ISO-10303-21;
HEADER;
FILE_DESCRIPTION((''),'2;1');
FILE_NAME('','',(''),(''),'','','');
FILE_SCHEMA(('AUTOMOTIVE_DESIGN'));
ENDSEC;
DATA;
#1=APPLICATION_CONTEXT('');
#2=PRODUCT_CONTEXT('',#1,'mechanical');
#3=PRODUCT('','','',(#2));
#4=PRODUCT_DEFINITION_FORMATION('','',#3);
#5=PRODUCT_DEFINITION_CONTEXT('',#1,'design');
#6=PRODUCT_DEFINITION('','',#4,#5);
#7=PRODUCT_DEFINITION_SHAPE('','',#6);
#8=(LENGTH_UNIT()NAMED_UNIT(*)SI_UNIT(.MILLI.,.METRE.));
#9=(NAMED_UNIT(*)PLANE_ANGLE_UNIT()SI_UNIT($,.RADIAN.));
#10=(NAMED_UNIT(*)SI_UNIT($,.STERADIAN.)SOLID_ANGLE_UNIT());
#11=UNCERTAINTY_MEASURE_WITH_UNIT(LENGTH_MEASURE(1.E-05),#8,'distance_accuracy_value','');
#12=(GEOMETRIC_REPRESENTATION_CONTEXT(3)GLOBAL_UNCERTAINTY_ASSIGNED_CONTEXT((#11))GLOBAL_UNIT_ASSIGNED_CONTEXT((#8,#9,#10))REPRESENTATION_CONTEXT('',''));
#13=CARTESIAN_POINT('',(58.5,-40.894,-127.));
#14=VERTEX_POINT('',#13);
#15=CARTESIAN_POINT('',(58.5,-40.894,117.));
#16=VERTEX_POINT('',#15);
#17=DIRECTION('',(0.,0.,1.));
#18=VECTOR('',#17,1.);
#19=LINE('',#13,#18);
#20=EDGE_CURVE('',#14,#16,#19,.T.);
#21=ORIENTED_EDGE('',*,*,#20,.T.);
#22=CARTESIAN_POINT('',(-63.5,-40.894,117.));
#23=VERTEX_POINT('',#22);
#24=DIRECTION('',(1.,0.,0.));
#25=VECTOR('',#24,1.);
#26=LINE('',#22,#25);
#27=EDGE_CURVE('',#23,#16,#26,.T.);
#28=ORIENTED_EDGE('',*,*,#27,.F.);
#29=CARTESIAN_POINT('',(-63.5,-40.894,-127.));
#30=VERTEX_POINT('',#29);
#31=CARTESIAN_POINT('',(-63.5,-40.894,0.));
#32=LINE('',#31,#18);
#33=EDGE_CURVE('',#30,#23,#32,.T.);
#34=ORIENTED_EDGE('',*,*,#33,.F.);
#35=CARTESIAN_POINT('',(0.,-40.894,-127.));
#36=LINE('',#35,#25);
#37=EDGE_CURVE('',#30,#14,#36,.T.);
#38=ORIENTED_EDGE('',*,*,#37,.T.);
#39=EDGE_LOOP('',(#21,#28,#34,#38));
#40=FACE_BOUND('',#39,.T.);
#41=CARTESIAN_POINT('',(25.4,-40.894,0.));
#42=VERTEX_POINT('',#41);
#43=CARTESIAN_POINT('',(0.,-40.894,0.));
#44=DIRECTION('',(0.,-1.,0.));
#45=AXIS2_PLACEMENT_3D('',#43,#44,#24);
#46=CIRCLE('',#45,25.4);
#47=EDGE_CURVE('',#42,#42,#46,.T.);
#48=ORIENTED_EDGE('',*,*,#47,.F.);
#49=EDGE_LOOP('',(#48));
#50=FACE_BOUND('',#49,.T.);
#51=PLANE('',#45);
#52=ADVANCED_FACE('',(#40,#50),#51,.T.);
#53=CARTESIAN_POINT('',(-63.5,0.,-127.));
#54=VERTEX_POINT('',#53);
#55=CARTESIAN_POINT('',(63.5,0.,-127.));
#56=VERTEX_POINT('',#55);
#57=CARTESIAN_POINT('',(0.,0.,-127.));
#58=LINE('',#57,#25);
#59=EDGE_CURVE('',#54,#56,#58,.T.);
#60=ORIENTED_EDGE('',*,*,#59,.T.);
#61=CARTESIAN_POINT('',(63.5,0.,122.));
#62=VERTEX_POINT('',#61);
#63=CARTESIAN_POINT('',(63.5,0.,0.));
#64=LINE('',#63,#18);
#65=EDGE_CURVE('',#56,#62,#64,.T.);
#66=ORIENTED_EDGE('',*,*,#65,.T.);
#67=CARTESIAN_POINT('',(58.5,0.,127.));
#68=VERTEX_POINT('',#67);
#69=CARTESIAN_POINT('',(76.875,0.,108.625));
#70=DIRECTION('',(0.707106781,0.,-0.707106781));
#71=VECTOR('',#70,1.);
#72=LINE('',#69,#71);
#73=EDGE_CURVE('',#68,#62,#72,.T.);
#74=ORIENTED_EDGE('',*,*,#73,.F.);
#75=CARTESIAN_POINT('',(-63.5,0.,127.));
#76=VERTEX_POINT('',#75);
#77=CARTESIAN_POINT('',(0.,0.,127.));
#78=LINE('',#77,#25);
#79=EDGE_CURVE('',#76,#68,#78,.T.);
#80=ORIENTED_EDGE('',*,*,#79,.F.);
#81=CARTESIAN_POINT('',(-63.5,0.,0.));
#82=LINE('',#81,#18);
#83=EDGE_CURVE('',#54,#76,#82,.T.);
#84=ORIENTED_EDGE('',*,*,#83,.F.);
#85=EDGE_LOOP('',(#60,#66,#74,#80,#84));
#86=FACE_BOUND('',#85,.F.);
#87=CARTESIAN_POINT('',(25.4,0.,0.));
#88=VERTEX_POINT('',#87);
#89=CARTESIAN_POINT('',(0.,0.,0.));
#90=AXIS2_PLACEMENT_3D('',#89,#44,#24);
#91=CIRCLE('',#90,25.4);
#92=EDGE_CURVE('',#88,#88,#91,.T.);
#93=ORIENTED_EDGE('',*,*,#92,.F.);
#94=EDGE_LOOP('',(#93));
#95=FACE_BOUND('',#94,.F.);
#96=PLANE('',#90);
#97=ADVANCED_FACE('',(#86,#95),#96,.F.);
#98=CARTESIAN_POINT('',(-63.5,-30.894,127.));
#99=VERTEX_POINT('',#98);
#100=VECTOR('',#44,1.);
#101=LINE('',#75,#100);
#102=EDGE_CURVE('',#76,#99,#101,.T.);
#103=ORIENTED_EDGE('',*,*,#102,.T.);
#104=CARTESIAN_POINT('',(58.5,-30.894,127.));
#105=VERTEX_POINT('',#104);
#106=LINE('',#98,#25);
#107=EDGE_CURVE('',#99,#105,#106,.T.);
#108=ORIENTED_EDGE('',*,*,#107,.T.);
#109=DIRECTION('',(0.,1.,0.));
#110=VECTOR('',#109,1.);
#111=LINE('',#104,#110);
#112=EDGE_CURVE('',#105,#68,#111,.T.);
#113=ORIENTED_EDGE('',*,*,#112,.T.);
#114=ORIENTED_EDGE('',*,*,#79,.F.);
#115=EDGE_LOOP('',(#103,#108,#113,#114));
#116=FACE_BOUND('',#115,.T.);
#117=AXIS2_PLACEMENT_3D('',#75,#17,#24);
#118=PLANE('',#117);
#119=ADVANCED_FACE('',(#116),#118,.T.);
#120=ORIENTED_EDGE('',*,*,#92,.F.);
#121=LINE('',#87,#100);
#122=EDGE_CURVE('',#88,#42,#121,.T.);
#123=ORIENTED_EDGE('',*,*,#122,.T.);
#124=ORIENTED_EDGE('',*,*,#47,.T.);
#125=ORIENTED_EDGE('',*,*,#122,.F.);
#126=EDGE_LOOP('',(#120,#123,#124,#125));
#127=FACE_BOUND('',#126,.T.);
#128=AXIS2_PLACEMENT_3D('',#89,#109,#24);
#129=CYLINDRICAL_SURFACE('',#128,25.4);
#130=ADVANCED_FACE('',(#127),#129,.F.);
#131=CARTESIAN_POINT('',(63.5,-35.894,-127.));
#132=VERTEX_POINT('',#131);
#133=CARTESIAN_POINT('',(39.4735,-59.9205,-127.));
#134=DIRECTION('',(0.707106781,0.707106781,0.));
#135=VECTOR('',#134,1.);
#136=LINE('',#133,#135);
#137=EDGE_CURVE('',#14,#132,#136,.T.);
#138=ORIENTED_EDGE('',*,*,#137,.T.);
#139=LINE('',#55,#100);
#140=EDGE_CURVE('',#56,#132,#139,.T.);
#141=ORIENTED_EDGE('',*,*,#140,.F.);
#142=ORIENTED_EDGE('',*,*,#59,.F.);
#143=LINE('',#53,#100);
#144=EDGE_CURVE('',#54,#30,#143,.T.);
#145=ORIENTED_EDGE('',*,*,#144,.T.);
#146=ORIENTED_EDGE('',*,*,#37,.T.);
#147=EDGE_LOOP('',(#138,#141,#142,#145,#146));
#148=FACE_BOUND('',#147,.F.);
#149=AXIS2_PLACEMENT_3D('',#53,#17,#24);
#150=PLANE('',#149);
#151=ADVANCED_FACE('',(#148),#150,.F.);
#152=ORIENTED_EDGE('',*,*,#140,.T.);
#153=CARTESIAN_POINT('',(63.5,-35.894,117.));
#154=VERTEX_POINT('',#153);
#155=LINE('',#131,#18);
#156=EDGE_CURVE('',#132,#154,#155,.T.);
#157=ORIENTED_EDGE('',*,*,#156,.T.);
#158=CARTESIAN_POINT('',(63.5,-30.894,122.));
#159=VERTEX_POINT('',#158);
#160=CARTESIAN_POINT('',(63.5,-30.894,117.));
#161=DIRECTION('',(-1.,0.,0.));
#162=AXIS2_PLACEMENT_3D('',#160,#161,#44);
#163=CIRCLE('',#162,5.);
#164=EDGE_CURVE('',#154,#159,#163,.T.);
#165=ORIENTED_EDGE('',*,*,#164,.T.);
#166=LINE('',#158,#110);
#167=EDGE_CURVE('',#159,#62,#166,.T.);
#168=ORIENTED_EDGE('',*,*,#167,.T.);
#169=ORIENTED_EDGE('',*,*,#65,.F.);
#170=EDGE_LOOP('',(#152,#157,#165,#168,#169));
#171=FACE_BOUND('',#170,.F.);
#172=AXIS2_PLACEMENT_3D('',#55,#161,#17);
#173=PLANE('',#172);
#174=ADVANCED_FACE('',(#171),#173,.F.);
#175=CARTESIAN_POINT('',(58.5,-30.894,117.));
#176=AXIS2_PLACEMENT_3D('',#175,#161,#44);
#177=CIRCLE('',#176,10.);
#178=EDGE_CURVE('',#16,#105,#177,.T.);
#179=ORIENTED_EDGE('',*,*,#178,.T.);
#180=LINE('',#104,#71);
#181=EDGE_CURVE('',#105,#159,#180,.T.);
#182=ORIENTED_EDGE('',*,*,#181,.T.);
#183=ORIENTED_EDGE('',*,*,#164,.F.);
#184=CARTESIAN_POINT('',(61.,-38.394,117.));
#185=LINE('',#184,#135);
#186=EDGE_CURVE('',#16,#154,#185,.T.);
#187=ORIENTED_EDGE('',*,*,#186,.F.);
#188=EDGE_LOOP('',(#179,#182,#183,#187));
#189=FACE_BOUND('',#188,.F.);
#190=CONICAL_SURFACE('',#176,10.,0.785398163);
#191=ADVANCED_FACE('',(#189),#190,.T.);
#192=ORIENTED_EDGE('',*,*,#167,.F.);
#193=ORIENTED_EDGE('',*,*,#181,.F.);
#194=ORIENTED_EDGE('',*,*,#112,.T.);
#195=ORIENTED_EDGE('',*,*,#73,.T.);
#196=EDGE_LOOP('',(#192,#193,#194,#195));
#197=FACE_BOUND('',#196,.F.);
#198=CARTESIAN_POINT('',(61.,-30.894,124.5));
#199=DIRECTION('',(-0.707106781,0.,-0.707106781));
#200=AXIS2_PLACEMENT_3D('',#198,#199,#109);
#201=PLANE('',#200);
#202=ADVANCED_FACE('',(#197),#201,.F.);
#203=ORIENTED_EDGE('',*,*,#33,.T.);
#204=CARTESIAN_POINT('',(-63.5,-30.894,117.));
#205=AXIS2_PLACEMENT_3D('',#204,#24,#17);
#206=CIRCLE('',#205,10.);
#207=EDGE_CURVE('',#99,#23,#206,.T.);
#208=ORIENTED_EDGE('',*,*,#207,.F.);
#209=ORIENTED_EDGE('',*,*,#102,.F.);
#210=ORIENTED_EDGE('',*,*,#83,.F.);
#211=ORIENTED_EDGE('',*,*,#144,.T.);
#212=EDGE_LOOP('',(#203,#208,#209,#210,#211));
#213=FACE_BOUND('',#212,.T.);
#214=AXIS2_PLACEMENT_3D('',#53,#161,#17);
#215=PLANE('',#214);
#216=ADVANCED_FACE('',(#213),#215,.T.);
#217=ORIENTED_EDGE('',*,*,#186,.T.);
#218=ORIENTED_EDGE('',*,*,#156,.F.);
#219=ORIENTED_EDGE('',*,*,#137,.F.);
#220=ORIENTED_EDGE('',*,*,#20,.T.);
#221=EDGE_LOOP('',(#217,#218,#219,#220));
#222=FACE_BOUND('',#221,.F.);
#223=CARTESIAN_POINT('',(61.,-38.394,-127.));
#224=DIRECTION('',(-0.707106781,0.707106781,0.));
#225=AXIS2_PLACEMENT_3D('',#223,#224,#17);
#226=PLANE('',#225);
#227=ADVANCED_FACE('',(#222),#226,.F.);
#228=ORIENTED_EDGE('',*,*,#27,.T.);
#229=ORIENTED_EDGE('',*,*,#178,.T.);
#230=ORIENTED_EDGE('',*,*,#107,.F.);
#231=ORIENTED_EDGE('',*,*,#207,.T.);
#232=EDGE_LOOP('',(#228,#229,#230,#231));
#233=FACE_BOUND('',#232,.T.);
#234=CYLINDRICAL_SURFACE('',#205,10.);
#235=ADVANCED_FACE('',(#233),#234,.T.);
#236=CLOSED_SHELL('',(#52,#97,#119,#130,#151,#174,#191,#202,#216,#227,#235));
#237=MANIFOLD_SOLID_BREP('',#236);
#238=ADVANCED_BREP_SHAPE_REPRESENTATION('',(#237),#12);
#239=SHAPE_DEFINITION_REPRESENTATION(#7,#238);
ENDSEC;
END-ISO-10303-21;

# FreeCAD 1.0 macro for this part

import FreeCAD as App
import Part
import Sketcher
Q = App.Units.Quantity


def edges_at(feature, points):
    """Names of the edges that pass closest to the given points."""
    edges = feature.Shape.Edges
    near = lambda p: min(range(len(edges)), key=lambda i: edges[i].distToShape(Part.Vertex(*p))[0])
    return sorted({f"Edge{near(p) + 1}" for p in points})

doc = App.newDocument("Part")
body = doc.addObject("PartDesign::Body", "Body")

# Sketch on XZ plane
sketch1 = body.newObject("Sketcher::SketchObject", "Sketch")
sketch1.AttachmentSupport = (doc.getObject("XZ_Plane"), [""])
sketch1.MapMode = "FlatFace"
sketch1.addGeometry([
    Part.LineSegment(App.Vector(-64, 127, 0), App.Vector(-64, -127, 0)),  # 0
    Part.LineSegment(App.Vector(-64, -127, 0), App.Vector(64, -127, 0)),  # 1
    Part.LineSegment(App.Vector(64, -127, 0), App.Vector(64, 127, 0)),  # 2
    Part.LineSegment(App.Vector(64, 127, 0), App.Vector(-64, 127, 0)),  # 3
    Part.Circle(App.Vector(0, 0, 0), App.Vector(0, 0, 1), 25),  # 4
], False)
sketch1.addConstraint([
    Sketcher.Constraint("Coincident", 0, 2, 1, 1),
    Sketcher.Constraint("Coincident", 1, 2, 2, 1),
    Sketcher.Constraint("Coincident", 2, 2, 3, 1),
    Sketcher.Constraint("Coincident", 3, 2, 0, 1),
    Sketcher.Constraint("Vertical", 0),
    Sketcher.Constraint("Horizontal", 1),
    Sketcher.Constraint("Vertical", 2),
    Sketcher.Constraint("Horizontal", 3),
    Sketcher.Constraint("Coincident", 4, 3, -1, 1),
    Sketcher.Constraint("Symmetric", 0, 2, 2, 2, -1, 1),
    Sketcher.Constraint("Diameter", 4, Q("2 in")),
    Sketcher.Constraint("DistanceX", 1, 1, 1, 2, Q("5 in")),
    Sketcher.Constraint("DistanceY", 0, 2, 0, 1, Q("10 in")),
])
pad1 = body.newObject("PartDesign::Pad", "Pad")
pad1.Profile = sketch1
pad1.Length = Q("1.61 in")
doc.recompute()

fillet = body.newObject("PartDesign::Fillet", "Fillet")
fillet.Base = (pad1, edges_at(pad1, [(0, -40.894, 127)]))
fillet.Radius = 10
doc.recompute()

chamfer = body.newObject("PartDesign::Chamfer", "Chamfer")
chamfer.Base = (fillet, edges_at(fillet, [(63.5, -40.894, -5)]))
chamfer.Size = 5

doc.recompute()
